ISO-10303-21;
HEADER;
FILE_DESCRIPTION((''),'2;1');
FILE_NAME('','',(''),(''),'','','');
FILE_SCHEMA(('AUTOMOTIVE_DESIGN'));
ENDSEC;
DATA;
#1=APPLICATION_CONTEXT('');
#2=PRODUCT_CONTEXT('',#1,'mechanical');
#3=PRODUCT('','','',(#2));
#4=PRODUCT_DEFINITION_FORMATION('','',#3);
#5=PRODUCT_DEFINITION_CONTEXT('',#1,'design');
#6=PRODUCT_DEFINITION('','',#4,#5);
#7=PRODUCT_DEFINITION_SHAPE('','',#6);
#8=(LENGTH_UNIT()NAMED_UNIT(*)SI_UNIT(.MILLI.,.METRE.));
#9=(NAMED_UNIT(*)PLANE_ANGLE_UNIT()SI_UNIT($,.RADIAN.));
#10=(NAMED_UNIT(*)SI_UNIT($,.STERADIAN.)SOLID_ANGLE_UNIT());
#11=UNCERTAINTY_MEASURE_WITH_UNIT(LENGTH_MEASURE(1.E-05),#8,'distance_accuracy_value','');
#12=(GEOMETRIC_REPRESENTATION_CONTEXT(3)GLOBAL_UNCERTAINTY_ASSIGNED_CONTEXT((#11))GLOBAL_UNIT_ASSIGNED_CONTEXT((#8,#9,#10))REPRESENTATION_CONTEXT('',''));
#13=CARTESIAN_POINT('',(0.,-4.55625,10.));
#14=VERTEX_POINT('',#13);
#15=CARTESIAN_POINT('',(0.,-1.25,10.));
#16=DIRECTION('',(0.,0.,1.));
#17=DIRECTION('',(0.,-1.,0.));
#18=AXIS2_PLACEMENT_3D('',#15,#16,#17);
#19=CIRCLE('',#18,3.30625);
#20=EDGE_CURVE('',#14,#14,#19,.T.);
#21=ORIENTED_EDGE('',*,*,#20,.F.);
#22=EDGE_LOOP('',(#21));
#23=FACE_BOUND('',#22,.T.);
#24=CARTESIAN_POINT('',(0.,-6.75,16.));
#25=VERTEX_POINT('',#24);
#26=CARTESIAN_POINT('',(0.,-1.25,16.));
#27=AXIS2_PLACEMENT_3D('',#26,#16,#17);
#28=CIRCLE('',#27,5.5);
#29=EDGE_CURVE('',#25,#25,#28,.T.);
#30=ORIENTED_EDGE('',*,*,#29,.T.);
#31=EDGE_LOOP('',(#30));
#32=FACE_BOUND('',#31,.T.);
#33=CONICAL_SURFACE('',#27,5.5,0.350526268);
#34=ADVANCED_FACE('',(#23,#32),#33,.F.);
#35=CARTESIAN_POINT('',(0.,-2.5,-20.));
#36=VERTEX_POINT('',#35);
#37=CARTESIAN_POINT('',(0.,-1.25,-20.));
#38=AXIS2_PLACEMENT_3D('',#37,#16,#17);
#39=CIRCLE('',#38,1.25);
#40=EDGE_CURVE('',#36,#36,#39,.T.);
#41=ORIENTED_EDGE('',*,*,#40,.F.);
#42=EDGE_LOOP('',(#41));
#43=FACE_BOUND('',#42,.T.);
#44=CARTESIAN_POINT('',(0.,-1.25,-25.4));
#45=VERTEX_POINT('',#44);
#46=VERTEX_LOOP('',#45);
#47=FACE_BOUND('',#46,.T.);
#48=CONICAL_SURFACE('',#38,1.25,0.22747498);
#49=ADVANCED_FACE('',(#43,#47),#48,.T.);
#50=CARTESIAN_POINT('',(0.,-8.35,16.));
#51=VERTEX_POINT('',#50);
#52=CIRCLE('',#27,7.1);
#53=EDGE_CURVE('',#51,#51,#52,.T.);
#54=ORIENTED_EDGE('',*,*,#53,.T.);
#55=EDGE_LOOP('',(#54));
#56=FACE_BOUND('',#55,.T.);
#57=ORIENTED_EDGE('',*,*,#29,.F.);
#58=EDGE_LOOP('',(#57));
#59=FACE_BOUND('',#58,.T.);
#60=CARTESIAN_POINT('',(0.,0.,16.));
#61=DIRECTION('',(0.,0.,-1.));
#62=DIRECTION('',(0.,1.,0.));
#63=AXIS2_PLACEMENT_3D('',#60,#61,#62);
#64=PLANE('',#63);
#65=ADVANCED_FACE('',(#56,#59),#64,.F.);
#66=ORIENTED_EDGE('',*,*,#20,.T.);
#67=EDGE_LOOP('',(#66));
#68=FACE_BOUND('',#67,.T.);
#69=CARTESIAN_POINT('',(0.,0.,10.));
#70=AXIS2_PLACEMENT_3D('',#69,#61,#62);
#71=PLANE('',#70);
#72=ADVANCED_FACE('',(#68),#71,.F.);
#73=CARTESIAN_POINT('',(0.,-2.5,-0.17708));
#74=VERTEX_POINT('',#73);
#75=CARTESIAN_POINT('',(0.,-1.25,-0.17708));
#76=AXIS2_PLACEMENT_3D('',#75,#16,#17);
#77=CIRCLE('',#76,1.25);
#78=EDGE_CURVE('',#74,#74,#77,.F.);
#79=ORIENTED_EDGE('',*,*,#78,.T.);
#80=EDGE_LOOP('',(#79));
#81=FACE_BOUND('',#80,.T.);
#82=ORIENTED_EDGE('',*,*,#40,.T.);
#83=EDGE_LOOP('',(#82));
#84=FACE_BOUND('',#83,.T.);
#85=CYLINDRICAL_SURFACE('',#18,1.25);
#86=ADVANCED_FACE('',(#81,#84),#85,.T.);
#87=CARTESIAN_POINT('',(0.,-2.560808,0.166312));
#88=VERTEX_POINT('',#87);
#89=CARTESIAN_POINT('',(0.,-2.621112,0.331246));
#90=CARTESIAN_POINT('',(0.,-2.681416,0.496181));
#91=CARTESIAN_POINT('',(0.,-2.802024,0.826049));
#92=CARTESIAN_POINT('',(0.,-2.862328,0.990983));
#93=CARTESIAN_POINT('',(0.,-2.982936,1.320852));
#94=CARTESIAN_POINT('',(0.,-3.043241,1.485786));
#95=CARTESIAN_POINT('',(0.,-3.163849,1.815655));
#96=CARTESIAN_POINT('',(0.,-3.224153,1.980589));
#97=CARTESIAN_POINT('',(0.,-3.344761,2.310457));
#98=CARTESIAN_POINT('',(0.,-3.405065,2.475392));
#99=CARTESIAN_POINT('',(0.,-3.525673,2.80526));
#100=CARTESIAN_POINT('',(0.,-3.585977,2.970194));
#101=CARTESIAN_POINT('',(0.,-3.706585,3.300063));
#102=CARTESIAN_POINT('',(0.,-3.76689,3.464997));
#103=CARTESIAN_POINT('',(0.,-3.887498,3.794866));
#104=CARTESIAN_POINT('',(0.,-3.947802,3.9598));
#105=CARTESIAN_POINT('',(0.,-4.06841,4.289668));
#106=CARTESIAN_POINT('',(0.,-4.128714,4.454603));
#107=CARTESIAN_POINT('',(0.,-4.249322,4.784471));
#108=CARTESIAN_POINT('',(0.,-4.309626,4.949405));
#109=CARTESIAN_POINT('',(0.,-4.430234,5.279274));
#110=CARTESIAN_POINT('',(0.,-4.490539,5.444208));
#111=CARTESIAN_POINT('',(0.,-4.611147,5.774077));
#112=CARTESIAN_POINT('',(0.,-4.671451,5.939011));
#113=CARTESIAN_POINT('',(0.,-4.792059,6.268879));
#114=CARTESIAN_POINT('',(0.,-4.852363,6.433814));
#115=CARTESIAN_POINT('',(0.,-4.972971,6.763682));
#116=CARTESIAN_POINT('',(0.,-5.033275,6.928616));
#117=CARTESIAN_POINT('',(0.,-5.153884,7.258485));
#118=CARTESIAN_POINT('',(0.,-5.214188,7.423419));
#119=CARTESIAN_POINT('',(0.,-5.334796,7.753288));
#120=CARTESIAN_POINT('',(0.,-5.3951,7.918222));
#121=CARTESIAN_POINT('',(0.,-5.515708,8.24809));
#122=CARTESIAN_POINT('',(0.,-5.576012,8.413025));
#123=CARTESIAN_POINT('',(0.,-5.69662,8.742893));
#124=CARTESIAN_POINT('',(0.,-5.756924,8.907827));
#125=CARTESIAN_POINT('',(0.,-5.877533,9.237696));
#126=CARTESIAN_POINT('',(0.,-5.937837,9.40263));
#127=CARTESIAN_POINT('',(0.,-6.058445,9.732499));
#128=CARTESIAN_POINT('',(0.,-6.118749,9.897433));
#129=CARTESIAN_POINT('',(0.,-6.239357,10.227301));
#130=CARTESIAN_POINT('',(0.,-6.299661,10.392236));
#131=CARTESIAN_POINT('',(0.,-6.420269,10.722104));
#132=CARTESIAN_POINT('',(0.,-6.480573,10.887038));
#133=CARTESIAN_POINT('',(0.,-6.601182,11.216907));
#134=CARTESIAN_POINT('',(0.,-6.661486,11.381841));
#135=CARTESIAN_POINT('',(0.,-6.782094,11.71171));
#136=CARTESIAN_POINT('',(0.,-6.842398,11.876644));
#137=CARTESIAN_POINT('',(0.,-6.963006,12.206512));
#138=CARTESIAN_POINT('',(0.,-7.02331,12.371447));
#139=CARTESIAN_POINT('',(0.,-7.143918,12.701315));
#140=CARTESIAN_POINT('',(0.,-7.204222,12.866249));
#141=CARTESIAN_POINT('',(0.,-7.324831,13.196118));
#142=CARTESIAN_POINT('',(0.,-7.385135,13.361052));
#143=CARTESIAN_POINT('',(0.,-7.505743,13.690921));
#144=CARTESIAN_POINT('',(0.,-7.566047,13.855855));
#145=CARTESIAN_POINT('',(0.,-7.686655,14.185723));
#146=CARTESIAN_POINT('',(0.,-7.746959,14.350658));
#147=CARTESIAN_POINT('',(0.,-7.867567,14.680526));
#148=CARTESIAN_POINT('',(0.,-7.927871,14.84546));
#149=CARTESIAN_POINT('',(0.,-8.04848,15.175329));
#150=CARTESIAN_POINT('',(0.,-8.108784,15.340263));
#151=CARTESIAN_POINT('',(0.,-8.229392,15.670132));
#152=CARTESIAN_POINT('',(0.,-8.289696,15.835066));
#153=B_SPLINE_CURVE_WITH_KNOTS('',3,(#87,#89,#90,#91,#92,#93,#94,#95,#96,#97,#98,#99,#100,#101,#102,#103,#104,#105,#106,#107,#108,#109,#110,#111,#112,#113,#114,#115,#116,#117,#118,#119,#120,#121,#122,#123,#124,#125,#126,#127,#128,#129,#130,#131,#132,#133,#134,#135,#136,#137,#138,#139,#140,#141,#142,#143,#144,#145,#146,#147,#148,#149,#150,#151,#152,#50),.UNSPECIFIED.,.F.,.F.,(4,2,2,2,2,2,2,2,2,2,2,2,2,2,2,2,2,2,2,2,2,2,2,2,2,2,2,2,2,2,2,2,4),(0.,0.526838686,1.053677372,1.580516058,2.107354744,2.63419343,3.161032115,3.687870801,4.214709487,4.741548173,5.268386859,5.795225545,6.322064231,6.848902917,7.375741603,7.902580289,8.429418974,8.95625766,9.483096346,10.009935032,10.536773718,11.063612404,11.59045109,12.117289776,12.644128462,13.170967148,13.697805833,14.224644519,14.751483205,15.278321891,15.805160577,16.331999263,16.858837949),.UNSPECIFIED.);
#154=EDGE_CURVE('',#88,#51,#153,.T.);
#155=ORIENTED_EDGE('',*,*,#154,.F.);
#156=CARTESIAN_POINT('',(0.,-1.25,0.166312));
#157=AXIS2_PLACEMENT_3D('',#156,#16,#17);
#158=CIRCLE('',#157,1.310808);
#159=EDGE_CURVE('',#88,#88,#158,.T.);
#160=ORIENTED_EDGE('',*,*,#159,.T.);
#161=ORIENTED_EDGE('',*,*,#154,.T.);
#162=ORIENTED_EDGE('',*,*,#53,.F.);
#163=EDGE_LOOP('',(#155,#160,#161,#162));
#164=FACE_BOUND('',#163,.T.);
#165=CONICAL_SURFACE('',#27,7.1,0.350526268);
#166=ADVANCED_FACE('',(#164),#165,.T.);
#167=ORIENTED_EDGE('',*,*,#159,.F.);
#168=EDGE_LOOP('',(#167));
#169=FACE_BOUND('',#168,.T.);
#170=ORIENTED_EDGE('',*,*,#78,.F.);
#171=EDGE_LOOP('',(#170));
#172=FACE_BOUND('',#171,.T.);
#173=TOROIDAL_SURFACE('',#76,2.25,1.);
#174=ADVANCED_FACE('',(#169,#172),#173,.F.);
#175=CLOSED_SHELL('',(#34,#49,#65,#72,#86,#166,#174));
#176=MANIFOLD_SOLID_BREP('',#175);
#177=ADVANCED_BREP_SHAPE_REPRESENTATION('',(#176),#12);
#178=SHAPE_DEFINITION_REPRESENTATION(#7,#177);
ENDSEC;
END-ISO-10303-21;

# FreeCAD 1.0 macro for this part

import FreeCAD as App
import Part
import Sketcher


def edges_at(feature, points):
    """Names of the edges that pass closest to the given points."""
    edges = feature.Shape.Edges
    near = lambda p: min(range(len(edges)), key=lambda i: edges[i].distToShape(Part.Vertex(*p))[0])
    return sorted({f"Edge{near(p) + 1}" for p in points})


def add_polygon(sketch, points):
    """Adds a closed chain of lines whose ends are joined by coincident constraints."""
    first, n = sketch.GeometryCount, len(points)
    for a, b in zip(points, points[1:] + points[:1]):
        sketch.addGeometry(Part.LineSegment(App.Vector(*a, 0), App.Vector(*b, 0)), False)
    for i in range(n):
        sketch.addConstraint(Sketcher.Constraint("Coincident", first + i, 2, first + (i + 1) % n, 1))

doc = App.newDocument("Part")
body = doc.addObject("PartDesign::Body", "Body")

# Sketch on YZ plane
sketch1 = body.newObject("Sketcher::SketchObject", "Sketch")
sketch1.AttachmentSupport = (doc.getObject("YZ_Plane"), [""])
sketch1.MapMode = "FlatFace"
add_polygon(sketch1, [(2.1, 10), (-1.2, 10), (-1.2, -25.4), (0, -20), (0, 0), (5.8, 16), (4.2, 16)])  # lines 0-6
sketch1.addGeometry(Part.LineSegment(App.Vector(-1.2, 16, 0), App.Vector(-1.2, -25.4, 0)), True)  # axis
sketch1.addConstraint(Sketcher.Constraint("Horizontal", 0))
sketch1.addConstraint(Sketcher.Constraint("Vertical", 1))
sketch1.addConstraint(Sketcher.Constraint("Vertical", 3))
sketch1.addConstraint(Sketcher.Constraint("Horizontal", 5))
sketch1.addConstraint(Sketcher.Constraint("Vertical", 7))
sketch1.addConstraint(Sketcher.Constraint("Coincident", 3, 2, -1, 1))
sketch1.addConstraint(Sketcher.Constraint("Coincident", 7, 2, 1, 2))
sketch1.addConstraint(Sketcher.Constraint("Parallel", 4, 6))
sketch1.addConstraint(Sketcher.Constraint("Horizontal", 5, 2, 7, 1))
sketch1.addConstraint(Sketcher.Constraint("DistanceY", 3, 1, 3, 2, 20.0))
sketch1.addConstraint(Sketcher.Constraint("DistanceX", 5, 2, 5, 1, 1.6))
sketch1.addConstraint(Sketcher.Constraint("DistanceY", 1, 2, 1, 1, 35.4))
sketch1.addConstraint(Sketcher.Constraint("DistanceY", 7, 2, 7, 1, 41.4))
sketch1.addConstraint(Sketcher.Constraint("DistanceY", -1, 1, 0, 2, 10.0))
sketch1.addConstraint(Sketcher.Constraint("DistanceX", 0, 2, 4, 2, 7.1))
sketch1.addConstraint(Sketcher.Constraint("DistanceX", 0, 2, -1, 1, 1.25))
revolution = body.newObject("PartDesign::Revolution", "Revolution")
revolution.Profile = sketch1
revolution.ReferenceAxis = (sketch1, ["Axis0"])
revolution.Angle = 360
doc.recompute()

fillet = body.newObject("PartDesign::Fillet", "Fillet")
fillet.Base = (revolution, edges_at(revolution, [(0, 0, 0)]))
fillet.Radius = 1

doc.recompute()
